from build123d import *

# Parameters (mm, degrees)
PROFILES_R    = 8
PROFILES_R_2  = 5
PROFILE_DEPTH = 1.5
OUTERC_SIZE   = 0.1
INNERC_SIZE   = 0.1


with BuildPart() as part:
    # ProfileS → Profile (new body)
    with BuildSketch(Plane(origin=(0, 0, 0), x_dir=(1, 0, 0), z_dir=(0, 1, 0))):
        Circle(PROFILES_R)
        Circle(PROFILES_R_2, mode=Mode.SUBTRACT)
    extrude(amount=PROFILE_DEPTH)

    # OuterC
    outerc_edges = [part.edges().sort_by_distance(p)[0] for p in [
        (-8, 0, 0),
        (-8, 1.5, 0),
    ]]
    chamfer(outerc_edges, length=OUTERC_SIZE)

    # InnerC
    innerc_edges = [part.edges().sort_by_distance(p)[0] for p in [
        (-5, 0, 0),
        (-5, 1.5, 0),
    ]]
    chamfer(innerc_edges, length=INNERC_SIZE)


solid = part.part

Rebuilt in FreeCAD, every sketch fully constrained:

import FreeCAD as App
import Part
import Sketcher


def edges_at(feature, points):
    """Names of the edges that pass closest to the given points."""
    edges = feature.Shape.Edges
    near = lambda p: min(range(len(edges)), key=lambda i: edges[i].distToShape(Part.Vertex(*p))[0])
    return sorted({f"Edge{near(p) + 1}" for p in points})

doc = App.newDocument("Part")
body = doc.addObject("PartDesign::Body", "Body")

# Sketch on XZ plane
sketch1 = doc.addObject("Sketcher::SketchObject", "Sketch")
body.addObject(sketch1)
sketch1.AttachmentSupport = (doc.XZ_Plane, [""])
sketch1.MapMode = "FlatFace"
sketch1.addGeometry(Part.Circle(App.Vector(0, 0, 0), App.Vector(0, 0, 1), 8), False)
sketch1.addGeometry(Part.Circle(App.Vector(0, 0, 0), App.Vector(0, 0, 1), 5), False)
sketch1.addConstraint(Sketcher.Constraint("Coincident", 0, 3, -1, 1))
sketch1.addConstraint(Sketcher.Constraint("Coincident", 1, 3, -1, 1))
sketch1.addConstraint(Sketcher.Constraint("Diameter", 0, 16.0))
sketch1.addConstraint(Sketcher.Constraint("Diameter", 1, 10.0))
pad1 = doc.addObject("PartDesign::Pad", "Pad")
body.addObject(pad1)
pad1.Profile = sketch1
pad1.Length = 1.5
pad1.Reversed = True
doc.recompute()

chamfer = doc.addObject("PartDesign::Chamfer", "Chamfer")
body.addObject(chamfer)
chamfer.Base = (pad1, edges_at(pad1, [(-8, 0, 0), (-8, 1.5, 0)]))
chamfer.Size = 0.1
doc.recompute()

chamfer2 = doc.addObject("PartDesign::Chamfer", "Chamfer001")
body.addObject(chamfer2)
chamfer2.Base = (chamfer, edges_at(chamfer, [(-5, 0, 0), (-5, 1.5, 0)]))
chamfer2.Size = 0.1

doc.recompute()
